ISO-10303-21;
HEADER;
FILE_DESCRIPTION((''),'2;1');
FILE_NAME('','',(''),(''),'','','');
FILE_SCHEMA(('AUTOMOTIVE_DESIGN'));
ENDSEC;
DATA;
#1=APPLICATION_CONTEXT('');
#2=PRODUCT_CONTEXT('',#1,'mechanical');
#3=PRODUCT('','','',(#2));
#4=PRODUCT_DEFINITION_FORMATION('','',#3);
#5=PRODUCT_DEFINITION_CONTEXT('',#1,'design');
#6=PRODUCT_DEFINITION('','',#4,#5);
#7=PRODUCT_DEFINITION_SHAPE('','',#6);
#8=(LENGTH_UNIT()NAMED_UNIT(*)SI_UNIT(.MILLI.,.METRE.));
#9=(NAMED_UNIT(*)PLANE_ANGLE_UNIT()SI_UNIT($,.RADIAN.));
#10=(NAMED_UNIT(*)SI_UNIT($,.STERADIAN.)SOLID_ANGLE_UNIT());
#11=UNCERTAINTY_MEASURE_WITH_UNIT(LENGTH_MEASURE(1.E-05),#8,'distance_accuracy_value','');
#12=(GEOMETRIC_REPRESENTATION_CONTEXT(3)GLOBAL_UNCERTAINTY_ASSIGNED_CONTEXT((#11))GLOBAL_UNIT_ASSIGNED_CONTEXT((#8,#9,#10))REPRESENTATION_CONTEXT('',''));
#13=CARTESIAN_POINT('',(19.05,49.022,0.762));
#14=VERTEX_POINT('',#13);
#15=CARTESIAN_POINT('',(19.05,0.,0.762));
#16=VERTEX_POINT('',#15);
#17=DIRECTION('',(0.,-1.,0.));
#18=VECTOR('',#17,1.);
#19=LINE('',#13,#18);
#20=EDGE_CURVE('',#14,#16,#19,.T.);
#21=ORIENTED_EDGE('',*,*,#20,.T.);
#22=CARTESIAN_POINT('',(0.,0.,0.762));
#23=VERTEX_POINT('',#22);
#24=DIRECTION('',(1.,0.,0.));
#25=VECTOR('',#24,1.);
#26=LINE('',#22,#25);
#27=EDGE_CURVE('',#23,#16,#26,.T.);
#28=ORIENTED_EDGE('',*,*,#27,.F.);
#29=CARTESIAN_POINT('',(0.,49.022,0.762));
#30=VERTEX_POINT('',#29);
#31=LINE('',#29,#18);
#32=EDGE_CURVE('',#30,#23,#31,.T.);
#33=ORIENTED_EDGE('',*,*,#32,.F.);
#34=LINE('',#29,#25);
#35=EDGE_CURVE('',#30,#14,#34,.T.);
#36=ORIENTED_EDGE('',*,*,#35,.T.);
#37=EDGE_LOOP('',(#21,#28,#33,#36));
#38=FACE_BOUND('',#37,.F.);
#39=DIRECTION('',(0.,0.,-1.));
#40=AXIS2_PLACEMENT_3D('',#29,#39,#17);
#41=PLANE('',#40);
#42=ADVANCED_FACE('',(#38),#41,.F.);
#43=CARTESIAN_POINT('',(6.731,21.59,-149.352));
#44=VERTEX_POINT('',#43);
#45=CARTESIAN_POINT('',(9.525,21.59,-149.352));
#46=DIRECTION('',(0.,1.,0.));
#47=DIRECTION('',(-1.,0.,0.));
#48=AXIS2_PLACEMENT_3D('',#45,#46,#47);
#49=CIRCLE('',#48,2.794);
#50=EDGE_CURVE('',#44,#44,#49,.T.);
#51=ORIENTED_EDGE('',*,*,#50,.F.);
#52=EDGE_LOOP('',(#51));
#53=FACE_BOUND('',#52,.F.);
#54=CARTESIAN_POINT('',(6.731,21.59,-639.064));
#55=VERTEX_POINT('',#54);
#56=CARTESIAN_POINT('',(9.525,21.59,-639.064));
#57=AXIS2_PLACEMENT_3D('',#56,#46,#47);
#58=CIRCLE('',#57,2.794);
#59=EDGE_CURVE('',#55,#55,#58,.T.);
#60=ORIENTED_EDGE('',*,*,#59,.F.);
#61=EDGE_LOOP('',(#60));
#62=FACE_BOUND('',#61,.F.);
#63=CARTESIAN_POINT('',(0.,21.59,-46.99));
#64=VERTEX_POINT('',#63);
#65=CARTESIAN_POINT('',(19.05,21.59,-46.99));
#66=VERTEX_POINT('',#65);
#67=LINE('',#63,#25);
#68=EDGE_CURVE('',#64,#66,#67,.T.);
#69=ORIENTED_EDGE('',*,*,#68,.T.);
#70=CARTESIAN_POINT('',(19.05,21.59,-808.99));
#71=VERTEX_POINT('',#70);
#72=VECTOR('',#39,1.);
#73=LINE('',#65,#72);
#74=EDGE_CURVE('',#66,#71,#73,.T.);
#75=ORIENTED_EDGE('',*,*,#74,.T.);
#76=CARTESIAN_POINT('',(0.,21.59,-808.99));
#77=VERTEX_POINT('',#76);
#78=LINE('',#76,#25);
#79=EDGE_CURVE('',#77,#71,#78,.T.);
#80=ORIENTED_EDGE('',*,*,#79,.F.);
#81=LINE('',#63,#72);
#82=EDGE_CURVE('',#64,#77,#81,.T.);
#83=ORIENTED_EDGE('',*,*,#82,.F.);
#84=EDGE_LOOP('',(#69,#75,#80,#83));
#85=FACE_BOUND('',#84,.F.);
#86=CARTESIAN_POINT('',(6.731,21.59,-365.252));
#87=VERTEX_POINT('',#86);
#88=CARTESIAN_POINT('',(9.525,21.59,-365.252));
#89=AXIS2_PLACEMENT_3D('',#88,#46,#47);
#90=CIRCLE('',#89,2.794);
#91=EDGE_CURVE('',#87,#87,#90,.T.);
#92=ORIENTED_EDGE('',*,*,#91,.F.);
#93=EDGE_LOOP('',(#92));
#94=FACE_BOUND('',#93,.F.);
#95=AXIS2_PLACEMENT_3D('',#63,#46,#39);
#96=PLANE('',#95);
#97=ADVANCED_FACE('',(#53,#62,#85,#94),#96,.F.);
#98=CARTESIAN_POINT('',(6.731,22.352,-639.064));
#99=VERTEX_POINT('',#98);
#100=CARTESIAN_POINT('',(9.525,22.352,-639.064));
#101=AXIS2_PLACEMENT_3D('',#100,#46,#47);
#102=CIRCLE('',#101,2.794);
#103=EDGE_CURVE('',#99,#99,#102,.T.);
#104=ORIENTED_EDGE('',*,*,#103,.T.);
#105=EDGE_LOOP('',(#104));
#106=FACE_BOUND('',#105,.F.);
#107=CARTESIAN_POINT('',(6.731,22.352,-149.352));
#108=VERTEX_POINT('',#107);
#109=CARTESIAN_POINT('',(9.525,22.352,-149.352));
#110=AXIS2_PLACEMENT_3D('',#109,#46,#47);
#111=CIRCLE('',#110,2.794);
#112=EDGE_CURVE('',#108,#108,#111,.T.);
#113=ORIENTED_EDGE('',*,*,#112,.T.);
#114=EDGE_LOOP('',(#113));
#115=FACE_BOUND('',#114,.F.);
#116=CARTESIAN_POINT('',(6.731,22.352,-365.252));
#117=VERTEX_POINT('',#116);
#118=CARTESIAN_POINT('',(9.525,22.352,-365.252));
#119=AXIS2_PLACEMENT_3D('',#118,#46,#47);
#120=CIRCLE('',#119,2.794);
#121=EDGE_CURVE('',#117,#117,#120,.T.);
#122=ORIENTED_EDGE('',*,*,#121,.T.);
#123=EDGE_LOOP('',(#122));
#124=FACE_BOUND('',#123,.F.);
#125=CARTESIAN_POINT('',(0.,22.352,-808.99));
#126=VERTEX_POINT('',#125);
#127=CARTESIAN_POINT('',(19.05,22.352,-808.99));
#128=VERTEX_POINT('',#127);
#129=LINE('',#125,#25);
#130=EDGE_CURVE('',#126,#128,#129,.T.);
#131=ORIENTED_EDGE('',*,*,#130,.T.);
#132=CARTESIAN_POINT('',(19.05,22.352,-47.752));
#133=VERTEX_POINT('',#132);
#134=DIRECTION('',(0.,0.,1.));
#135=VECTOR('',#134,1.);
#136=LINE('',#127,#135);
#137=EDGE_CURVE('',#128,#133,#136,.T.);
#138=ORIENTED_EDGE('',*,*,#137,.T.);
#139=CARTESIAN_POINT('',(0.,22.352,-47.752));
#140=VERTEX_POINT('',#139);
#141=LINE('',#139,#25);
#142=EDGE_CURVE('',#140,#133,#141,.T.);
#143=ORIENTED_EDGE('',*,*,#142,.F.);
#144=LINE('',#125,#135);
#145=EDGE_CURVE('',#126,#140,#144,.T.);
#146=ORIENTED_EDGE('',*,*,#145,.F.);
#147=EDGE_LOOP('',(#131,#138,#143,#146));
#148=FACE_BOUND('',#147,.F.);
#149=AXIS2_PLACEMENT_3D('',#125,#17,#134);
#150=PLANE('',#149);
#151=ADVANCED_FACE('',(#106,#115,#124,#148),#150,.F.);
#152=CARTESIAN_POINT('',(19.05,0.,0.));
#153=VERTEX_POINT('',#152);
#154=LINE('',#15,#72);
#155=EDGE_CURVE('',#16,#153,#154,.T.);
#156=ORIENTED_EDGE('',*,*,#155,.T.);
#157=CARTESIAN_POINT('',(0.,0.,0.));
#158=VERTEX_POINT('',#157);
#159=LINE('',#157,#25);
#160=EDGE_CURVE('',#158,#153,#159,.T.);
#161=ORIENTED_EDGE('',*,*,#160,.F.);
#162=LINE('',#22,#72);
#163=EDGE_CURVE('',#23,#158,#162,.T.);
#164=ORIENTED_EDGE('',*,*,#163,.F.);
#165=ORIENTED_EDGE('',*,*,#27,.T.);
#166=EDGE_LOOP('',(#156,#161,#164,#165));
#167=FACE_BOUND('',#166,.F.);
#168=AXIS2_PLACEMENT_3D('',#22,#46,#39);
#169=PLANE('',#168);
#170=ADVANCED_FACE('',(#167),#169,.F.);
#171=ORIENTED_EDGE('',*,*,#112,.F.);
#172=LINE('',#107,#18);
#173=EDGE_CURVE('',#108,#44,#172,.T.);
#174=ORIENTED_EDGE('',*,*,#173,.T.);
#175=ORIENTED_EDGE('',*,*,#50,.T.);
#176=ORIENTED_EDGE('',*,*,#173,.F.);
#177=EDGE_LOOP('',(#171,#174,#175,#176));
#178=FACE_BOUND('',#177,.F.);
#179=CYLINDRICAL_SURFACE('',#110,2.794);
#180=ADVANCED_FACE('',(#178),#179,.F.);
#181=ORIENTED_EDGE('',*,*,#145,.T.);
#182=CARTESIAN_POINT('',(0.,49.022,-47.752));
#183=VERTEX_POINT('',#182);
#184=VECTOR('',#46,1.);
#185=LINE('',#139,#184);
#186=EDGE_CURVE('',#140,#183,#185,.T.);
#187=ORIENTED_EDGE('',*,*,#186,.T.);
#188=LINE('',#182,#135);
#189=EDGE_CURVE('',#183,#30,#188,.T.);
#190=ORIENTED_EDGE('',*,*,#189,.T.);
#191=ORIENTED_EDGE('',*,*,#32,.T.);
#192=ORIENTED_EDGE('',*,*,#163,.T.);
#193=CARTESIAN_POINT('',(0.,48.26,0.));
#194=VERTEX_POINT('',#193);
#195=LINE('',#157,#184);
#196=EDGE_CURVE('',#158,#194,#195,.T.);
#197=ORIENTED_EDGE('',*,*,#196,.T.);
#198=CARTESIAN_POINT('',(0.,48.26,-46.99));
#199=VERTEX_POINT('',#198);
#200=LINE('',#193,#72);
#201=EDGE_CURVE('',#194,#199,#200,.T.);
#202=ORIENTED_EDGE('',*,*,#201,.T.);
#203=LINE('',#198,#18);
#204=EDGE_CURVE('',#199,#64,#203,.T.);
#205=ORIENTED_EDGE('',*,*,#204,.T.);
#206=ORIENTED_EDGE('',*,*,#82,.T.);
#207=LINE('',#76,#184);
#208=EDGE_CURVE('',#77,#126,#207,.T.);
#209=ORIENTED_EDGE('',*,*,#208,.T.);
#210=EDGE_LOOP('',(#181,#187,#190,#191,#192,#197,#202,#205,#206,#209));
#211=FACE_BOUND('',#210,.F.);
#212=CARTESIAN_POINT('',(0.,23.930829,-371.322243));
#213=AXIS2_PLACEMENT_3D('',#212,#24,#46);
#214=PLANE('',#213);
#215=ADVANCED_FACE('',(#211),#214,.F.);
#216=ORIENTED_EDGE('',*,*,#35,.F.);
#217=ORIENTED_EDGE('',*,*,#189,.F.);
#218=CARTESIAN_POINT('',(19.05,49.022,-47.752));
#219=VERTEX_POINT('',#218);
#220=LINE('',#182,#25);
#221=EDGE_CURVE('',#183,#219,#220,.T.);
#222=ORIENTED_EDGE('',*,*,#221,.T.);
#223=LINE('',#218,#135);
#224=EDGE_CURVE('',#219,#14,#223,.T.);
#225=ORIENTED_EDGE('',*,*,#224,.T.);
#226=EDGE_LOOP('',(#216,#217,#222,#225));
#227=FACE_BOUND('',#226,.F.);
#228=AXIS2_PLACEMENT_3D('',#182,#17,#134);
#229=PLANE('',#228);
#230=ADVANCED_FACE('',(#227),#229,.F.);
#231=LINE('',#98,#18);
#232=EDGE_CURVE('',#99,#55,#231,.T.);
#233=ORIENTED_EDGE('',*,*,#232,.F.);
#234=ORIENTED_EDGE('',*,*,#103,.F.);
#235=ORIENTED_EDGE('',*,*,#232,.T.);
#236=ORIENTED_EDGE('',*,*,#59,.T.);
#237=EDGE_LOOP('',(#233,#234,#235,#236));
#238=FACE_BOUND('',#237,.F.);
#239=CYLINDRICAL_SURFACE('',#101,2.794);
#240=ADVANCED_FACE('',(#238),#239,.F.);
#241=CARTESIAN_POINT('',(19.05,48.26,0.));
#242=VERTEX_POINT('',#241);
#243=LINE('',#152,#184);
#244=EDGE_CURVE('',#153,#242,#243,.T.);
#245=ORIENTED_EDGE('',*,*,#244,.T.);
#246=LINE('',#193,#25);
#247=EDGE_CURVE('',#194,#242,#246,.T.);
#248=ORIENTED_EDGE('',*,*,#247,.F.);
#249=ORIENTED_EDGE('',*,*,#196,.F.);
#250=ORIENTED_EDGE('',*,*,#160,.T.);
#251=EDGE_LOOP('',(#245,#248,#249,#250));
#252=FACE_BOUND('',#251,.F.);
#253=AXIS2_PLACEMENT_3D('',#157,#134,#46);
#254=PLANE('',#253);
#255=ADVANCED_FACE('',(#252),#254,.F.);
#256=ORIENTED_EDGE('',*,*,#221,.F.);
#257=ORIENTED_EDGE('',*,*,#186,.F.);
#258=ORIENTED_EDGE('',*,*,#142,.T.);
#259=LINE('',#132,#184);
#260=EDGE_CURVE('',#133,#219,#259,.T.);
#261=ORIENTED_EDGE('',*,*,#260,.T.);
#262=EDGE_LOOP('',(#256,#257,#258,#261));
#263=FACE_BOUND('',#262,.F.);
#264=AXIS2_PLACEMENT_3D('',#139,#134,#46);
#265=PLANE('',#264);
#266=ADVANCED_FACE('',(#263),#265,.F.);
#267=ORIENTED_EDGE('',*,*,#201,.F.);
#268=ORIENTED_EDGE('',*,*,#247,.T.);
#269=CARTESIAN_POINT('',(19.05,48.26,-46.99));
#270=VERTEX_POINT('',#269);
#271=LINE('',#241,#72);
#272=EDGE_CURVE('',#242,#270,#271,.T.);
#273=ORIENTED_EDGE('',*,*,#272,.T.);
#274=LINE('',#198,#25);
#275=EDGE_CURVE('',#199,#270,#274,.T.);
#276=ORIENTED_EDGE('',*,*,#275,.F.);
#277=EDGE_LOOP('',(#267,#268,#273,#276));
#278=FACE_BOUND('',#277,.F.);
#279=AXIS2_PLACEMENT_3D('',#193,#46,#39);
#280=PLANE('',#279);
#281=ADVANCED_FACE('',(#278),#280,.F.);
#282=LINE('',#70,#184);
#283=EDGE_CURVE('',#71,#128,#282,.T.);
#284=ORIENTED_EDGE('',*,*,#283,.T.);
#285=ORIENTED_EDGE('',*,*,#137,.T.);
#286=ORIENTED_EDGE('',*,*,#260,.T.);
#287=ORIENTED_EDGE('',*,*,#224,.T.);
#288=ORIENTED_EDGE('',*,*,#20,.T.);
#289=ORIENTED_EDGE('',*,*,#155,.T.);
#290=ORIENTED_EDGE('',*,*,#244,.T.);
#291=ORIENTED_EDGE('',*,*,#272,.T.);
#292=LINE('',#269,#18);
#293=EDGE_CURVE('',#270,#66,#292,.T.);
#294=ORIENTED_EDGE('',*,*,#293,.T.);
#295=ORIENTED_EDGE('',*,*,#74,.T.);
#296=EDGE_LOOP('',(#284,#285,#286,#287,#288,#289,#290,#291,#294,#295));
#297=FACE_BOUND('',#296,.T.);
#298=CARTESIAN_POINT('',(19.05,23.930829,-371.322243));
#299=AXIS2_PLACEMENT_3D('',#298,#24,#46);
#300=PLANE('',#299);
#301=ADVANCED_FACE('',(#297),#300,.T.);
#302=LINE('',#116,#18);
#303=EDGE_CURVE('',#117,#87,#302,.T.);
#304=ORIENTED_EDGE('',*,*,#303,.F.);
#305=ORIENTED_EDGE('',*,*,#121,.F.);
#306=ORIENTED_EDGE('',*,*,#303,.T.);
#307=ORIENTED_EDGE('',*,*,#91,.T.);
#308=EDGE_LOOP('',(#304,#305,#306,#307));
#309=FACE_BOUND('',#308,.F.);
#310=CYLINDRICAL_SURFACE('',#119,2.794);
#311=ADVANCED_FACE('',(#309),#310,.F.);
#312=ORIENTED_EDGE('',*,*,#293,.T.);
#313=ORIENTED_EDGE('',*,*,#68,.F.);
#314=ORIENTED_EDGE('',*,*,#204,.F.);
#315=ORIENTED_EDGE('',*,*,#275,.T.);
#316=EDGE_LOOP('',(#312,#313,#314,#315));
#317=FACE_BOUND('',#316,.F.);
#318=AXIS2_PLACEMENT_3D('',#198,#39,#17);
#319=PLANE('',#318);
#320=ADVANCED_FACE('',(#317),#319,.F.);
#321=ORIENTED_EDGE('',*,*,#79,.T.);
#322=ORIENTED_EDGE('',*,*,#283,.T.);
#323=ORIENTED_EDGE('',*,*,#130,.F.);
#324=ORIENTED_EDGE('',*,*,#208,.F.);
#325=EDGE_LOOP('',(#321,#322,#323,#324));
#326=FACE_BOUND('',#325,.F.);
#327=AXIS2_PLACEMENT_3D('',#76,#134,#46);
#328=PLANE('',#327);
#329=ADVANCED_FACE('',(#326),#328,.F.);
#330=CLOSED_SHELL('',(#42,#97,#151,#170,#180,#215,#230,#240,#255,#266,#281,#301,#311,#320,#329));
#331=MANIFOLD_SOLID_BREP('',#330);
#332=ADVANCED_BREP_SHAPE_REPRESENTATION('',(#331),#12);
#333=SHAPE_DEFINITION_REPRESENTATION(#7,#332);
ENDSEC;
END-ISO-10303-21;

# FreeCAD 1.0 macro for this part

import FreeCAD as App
import Part
import Sketcher

V = App.Vector
Q = App.Units.Quantity


def add_polygon(sketch, points):
    """Adds a closed chain of lines whose ends are joined by coincident constraints."""
    first, n = sketch.GeometryCount, len(points)
    for a, b in zip(points, points[1:] + points[:1]):
        sketch.addGeometry(Part.LineSegment(App.Vector(*a, 0), App.Vector(*b, 0)), False)
    for i in range(n):
        sketch.addConstraint(Sketcher.Constraint("Coincident", first + i, 2, first + (i + 1) % n, 1))

doc = App.newDocument("Part")
body = doc.addObject("PartDesign::Body", "Body")

sketch1 = body.newObject("Sketcher::SketchObject", "Sketch")
sketch1.AttachmentSupport = (doc.getObject("YZ_Plane"), [""])
sketch1.MapMode = "FlatFace"
add_polygon(sketch1, [(0, 0.762), (0, 0), (48.26, 0), (48.26, -46.99), (21.59, -46.99), (21.59, -808.99), (22.352, -808.99), (22.352, -47.752), (49.022, -47.752), (49.022, 0.762)])
sketch1.addConstraint(Sketcher.Constraint("Vertical", 0))
sketch1.addConstraint(Sketcher.Constraint("Horizontal", 1))
sketch1.addConstraint(Sketcher.Constraint("Vertical", 2))
sketch1.addConstraint(Sketcher.Constraint("Horizontal", 3))
sketch1.addConstraint(Sketcher.Constraint("Vertical", 4))
sketch1.addConstraint(Sketcher.Constraint("Horizontal", 5))
sketch1.addConstraint(Sketcher.Constraint("Vertical", 6))
sketch1.addConstraint(Sketcher.Constraint("Horizontal", 7))
sketch1.addConstraint(Sketcher.Constraint("Vertical", 8))
sketch1.addConstraint(Sketcher.Constraint("Horizontal", 9))
sketch1.addConstraint(Sketcher.Constraint("Coincident", 0, 2, -1, 1))
sketch1.addConstraint(Sketcher.Constraint("Equal", 3, 7))
sketch1.addConstraint(Sketcher.Constraint("Equal", 5, 0))
sketch1.addConstraint(Sketcher.Constraint("DistanceY", 4, 2, 4, 1, Q("30 in")))
sketch1.addConstraint(Sketcher.Constraint("DistanceX", 1, 1, 1, 2, Q("1.9 in")))
sketch1.addConstraint(Sketcher.Constraint("DistanceX", 3, 2, 3, 1, Q("1.05 in")))
sketch1.addConstraint(Sketcher.Constraint("DistanceX", 5, 1, 5, 2, Q("0.03 in")))
sketch1.addConstraint(Sketcher.Constraint("DistanceY", 2, 2, 2, 1, Q("1.85 in")))
sketch1.addConstraint(Sketcher.Constraint("DistanceY", 6, 1, 6, 2, Q("29.97 in")))
pad1 = body.newObject("PartDesign::Pad", "Pad")
pad1.Profile = sketch1
pad1.Length = Q("0.75 in")

sketch2 = body.newObject("Sketcher::SketchObject", "Sketch001")
sketch2.AttachmentSupport = (doc.getObject("XZ_Plane"), [""])
sketch2.MapMode = "FlatFace"
sketch2.AttachmentOffset = App.Placement(V(0, 0, -0.88 * 25.4), App.Rotation())
sketch2.addGeometry(Part.Circle(V(9.525, -149.352, 0), V(0, 0, 1), 2.794), False)
sketch2.addGeometry(Part.Circle(V(9.525, -365.252, 0), V(0, 0, 1), 2.794), False)
sketch2.addGeometry(Part.Circle(V(9.525, -639.064, 0), V(0, 0, 1), 2.794), False)
sketch2.addConstraint(Sketcher.Constraint("Equal", 0, 1))
sketch2.addConstraint(Sketcher.Constraint("Equal", 1, 2))
sketch2.addConstraint(Sketcher.Constraint("Vertical", 0, 3, 1, 3))
sketch2.addConstraint(Sketcher.Constraint("Vertical", 1, 3, 2, 3))
sketch2.addConstraint(Sketcher.Constraint("Diameter", 0, Q("0.22 in")))
sketch2.addConstraint(Sketcher.Constraint("DistanceY", 1, 3, 0, 3, Q("8.5 in")))
sketch2.addConstraint(Sketcher.Constraint("DistanceY", 0, 3, -1, 1, Q("5.88 in")))
sketch2.addConstraint(Sketcher.Constraint("DistanceY", 2, 3, -1, 1, Q("25.16 in")))
sketch2.addConstraint(Sketcher.Constraint("DistanceX", -1, 1, 0, 3, Q("0.375 in")))
pocket1 = body.newObject("PartDesign::Pocket", "Pocket")
pocket1.Profile = sketch2
pocket1.Length = Q("1 in")
pocket1.Reversed = True

doc.recompute()
